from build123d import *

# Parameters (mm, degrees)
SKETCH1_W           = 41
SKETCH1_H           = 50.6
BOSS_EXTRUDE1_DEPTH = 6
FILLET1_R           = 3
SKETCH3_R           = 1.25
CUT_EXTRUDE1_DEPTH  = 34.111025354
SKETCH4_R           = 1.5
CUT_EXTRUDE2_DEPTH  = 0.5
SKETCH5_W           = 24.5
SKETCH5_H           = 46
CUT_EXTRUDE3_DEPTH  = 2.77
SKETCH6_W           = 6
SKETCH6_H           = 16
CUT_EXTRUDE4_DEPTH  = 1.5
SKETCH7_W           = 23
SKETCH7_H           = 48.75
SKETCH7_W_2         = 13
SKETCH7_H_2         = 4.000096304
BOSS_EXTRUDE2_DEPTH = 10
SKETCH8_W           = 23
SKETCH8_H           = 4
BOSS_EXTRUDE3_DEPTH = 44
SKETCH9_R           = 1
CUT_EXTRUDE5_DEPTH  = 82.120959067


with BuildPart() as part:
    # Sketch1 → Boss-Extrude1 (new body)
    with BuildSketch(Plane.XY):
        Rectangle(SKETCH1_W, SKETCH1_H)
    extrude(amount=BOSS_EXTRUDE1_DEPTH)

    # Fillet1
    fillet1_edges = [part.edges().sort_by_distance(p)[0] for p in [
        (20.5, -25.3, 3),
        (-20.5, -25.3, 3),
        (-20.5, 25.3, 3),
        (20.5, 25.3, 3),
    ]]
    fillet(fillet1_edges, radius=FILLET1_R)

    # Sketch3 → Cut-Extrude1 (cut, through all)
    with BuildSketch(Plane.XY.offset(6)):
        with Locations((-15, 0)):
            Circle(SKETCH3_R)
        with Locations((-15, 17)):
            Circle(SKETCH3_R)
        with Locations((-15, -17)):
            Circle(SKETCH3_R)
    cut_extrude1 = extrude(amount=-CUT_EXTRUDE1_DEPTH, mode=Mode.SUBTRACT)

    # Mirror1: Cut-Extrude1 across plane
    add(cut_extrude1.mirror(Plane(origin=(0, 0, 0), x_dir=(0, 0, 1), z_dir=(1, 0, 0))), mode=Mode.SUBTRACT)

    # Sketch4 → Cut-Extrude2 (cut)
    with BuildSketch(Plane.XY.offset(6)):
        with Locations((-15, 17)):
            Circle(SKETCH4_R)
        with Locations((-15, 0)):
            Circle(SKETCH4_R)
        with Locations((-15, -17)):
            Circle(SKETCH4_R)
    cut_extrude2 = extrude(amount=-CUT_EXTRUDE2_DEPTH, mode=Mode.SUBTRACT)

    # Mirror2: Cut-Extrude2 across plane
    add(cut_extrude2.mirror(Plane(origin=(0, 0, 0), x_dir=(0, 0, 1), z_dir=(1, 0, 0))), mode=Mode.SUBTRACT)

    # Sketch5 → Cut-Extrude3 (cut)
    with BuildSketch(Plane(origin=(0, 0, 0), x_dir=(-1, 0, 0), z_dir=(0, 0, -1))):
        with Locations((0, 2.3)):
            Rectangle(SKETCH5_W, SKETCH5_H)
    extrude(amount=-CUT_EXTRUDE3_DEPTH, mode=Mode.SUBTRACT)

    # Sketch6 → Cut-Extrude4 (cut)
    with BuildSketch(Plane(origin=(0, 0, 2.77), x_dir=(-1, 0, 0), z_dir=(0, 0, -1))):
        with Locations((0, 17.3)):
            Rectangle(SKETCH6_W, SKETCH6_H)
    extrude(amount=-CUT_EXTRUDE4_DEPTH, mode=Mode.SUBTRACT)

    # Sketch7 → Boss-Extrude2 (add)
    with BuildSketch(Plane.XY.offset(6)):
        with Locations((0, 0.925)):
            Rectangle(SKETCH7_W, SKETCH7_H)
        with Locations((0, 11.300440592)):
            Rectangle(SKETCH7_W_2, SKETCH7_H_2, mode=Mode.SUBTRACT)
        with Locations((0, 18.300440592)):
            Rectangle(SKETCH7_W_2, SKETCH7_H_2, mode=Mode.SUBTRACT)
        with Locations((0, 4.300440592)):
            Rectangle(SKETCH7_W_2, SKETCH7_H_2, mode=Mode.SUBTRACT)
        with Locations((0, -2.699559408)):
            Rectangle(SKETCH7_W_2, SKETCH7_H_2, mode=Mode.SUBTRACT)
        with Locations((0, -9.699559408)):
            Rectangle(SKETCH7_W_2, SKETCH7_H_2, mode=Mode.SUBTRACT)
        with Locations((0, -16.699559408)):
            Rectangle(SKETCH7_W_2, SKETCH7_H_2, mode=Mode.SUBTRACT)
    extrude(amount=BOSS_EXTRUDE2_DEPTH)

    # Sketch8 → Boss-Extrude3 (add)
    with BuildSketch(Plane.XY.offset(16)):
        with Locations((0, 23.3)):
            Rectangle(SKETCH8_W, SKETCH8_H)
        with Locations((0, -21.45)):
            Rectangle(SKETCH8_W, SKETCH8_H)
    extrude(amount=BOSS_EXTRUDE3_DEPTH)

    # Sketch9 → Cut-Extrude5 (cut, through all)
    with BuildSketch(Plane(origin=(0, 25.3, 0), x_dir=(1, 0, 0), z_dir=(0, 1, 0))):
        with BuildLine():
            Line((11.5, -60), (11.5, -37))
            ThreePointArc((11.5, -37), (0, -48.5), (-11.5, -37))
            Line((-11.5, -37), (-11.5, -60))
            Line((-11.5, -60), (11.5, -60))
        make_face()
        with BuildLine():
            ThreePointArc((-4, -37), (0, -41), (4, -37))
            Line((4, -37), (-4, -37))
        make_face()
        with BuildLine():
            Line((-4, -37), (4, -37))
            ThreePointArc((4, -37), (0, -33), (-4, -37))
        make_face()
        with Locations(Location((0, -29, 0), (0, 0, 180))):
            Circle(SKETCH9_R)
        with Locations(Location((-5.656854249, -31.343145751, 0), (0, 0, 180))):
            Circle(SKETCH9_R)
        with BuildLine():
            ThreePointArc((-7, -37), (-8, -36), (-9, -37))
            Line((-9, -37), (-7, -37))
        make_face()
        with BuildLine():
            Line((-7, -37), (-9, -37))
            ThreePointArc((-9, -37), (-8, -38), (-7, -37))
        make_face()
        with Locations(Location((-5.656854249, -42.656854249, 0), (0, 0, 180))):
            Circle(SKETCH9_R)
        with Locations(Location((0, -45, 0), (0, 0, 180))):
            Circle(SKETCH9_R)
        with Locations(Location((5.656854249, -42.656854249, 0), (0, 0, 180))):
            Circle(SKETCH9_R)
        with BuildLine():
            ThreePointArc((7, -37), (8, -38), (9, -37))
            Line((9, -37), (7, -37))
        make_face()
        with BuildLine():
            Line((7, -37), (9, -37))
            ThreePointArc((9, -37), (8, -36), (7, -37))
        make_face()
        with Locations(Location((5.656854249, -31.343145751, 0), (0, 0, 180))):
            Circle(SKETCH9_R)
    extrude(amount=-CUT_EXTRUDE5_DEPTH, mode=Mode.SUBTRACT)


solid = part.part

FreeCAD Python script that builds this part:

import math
import FreeCAD as App
import Part
import Sketcher
from FreeCAD import Vector


def edges_at(feature, points):
    """Names of the edges that pass closest to the given points."""
    edges = feature.Shape.Edges
    near = lambda p: min(range(len(edges)), key=lambda i: edges[i].distToShape(Part.Vertex(*p))[0])
    return sorted({f"Edge{near(p) + 1}" for p in points})

doc = App.newDocument("Part")
body = doc.addObject("PartDesign::Body", "Body")

# Sketch on XY plane
sketch1 = doc.addObject("Sketcher::SketchObject", "Sketch")
body.addObject(sketch1)
sketch1.AttachmentSupport = (doc.XY_Plane, [""])
sketch1.MapMode = "FlatFace"
sketch1.addGeometry([
    Part.LineSegment(Vector(-20.5, 25.3, 0), Vector(-20.5, -25.3, 0)),
    Part.LineSegment(Vector(-20.5, -25.3, 0), Vector(20.5, -25.3, 0)),
    Part.LineSegment(Vector(20.5, -25.3, 0), Vector(20.5, 25.3, 0)),
    Part.LineSegment(Vector(20.5, 25.3, 0), Vector(-20.5, 25.3, 0)),
], False)
sketch1.addConstraint([
    Sketcher.Constraint("Coincident", 0, 2, 1, 1),
    Sketcher.Constraint("Coincident", 1, 2, 2, 1),
    Sketcher.Constraint("Coincident", 2, 2, 3, 1),
    Sketcher.Constraint("Coincident", 3, 2, 0, 1),
    Sketcher.Constraint("Vertical", 0),
    Sketcher.Constraint("Horizontal", 1),
    Sketcher.Constraint("Vertical", 2),
    Sketcher.Constraint("Horizontal", 3),
    Sketcher.Constraint("Symmetric", 0, 2, 2, 2, -1, 1),
    Sketcher.Constraint("DistanceX", 1, 1, 1, 2, 41.0),
    Sketcher.Constraint("DistanceY", 0, 2, 0, 1, 50.6),
])
pad1 = doc.addObject("PartDesign::Pad", "Pad")
body.addObject(pad1)
pad1.Profile = sketch1
pad1.Length = 6
doc.recompute()

fillet = doc.addObject("PartDesign::Fillet", "Fillet")
body.addObject(fillet)
fillet.Base = (pad1, edges_at(pad1, [
    (20.5, -25.3, 3),
    (-20.5, -25.3, 3),
    (-20.5, 25.3, 3),
    (20.5, 25.3, 3),
]))
fillet.Radius = 3

# Sketch on XY plane
sketch2 = doc.addObject("Sketcher::SketchObject", "Sketch001")
body.addObject(sketch2)
sketch2.AttachmentSupport = (doc.XY_Plane, [""])
sketch2.MapMode = "FlatFace"
sketch2.AttachmentOffset = App.Placement(Vector(0, 0, 6), App.Rotation())
sketch2.addGeometry([
    Part.Circle(Vector(-15, 0, 0), Vector(0, 0, 1), 1.25),
    Part.Circle(Vector(-15, 17, 0), Vector(0, 0, 1), 1.25),
    Part.Circle(Vector(-15, -17, 0), Vector(0, 0, 1), 1.25),
], False)
sketch2.addConstraint([
    Sketcher.Constraint("Equal", 0, 1),
    Sketcher.Constraint("Equal", 1, 2),
    Sketcher.Constraint("Symmetric", 1, 3, 2, 3, -1),
    Sketcher.Constraint("PointOnObject", 0, 3, -1),
    Sketcher.Constraint("Vertical", 0, 3, 1, 3),
    Sketcher.Constraint("Diameter", 0, 2.5),
    Sketcher.Constraint("DistanceX", 0, 3, -1, 1, 15.0),
    Sketcher.Constraint("DistanceY", -1, 1, 1, 3, 17.0),
])
pocket1 = doc.addObject("PartDesign::Pocket", "Pocket")
body.addObject(pocket1)
pocket1.Profile = sketch2
pocket1.Type = "ThroughAll"
doc.recompute()

mirrored = doc.addObject("PartDesign::Mirrored", "Mirrored")
body.addObject(mirrored)
mirrored.Originals = [pocket1]
mirrored.MirrorPlane = (doc.YZ_Plane, [""])
body.Tip = mirrored

# Sketch on XY plane
sketch3 = doc.addObject("Sketcher::SketchObject", "Sketch002")
body.addObject(sketch3)
sketch3.AttachmentSupport = (doc.XY_Plane, [""])
sketch3.MapMode = "FlatFace"
sketch3.AttachmentOffset = App.Placement(Vector(0, 0, 6), App.Rotation())
sketch3.addGeometry([
    Part.Circle(Vector(-15, 17, 0), Vector(0, 0, 1), 1.5),
    Part.Circle(Vector(-15, 0, 0), Vector(0, 0, 1), 1.5),
    Part.Circle(Vector(-15, -17, 0), Vector(0, 0, 1), 1.5),
], False)
sketch3.addConstraint([
    Sketcher.Constraint("Equal", 0, 1),
    Sketcher.Constraint("Equal", 1, 2),
    Sketcher.Constraint("Symmetric", 0, 3, 2, 3, -1),
    Sketcher.Constraint("PointOnObject", 1, 3, -1),
    Sketcher.Constraint("Vertical", 0, 3, 1, 3),
    Sketcher.Constraint("Diameter", 0, 3.0),
    Sketcher.Constraint("DistanceX", 0, 3, -1, 1, 15.0),
    Sketcher.Constraint("DistanceY", -1, 1, 0, 3, 17.0),
])
pocket2 = doc.addObject("PartDesign::Pocket", "Pocket001")
body.addObject(pocket2)
pocket2.Profile = sketch3
pocket2.Length = 0.5
doc.recompute()

mirrored2 = doc.addObject("PartDesign::Mirrored", "Mirrored001")
body.addObject(mirrored2)
mirrored2.Originals = [pocket2]
mirrored2.MirrorPlane = (doc.YZ_Plane, [""])
body.Tip = mirrored2

# Sketch on XY plane
sketch4 = doc.addObject("Sketcher::SketchObject", "Sketch003")
body.addObject(sketch4)
sketch4.AttachmentSupport = (doc.XY_Plane, [""])
sketch4.MapMode = "FlatFace"
sketch4.addGeometry([
    Part.LineSegment(Vector(12.25, 25.3, 0), Vector(12.25, -20.7, 0)),
    Part.LineSegment(Vector(12.25, -20.7, 0), Vector(-12.25, -20.7, 0)),
    Part.LineSegment(Vector(-12.25, -20.7, 0), Vector(-12.25, 25.3, 0)),
    Part.LineSegment(Vector(-12.25, 25.3, 0), Vector(12.25, 25.3, 0)),
], False)
sketch4.addConstraint([
    Sketcher.Constraint("Coincident", 0, 2, 1, 1),
    Sketcher.Constraint("Coincident", 1, 2, 2, 1),
    Sketcher.Constraint("Coincident", 2, 2, 3, 1),
    Sketcher.Constraint("Coincident", 3, 2, 0, 1),
    Sketcher.Constraint("Vertical", 0),
    Sketcher.Constraint("Horizontal", 1),
    Sketcher.Constraint("Vertical", 2),
    Sketcher.Constraint("Horizontal", 3),
    Sketcher.Constraint("DistanceY", 0, 2, 0, 1, 46.0),
    Sketcher.Constraint("DistanceX", 1, 2, 1, 1, 24.5),
    Sketcher.Constraint("DistanceY", 0, 2, -1, 1, 20.7),
    Sketcher.Constraint("DistanceX", -1, 1, 0, 2, 12.25),
])
pocket3 = doc.addObject("PartDesign::Pocket", "Pocket002")
body.addObject(pocket3)
pocket3.Profile = sketch4
pocket3.Length = 2.77
pocket3.Reversed = True

# Sketch on XY plane
sketch5 = doc.addObject("Sketcher::SketchObject", "Sketch004")
body.addObject(sketch5)
sketch5.AttachmentSupport = (doc.XY_Plane, [""])
sketch5.MapMode = "FlatFace"
sketch5.AttachmentOffset = App.Placement(Vector(0, 0, 2.77), App.Rotation())
sketch5.addGeometry([
    Part.LineSegment(Vector(3, 25.3, 0), Vector(3, 9.3, 0)),
    Part.LineSegment(Vector(3, 9.3, 0), Vector(-3, 9.3, 0)),
    Part.LineSegment(Vector(-3, 9.3, 0), Vector(-3, 25.3, 0)),
    Part.LineSegment(Vector(-3, 25.3, 0), Vector(3, 25.3, 0)),
], False)
sketch5.addConstraint([
    Sketcher.Constraint("Coincident", 0, 2, 1, 1),
    Sketcher.Constraint("Coincident", 1, 2, 2, 1),
    Sketcher.Constraint("Coincident", 2, 2, 3, 1),
    Sketcher.Constraint("Coincident", 3, 2, 0, 1),
    Sketcher.Constraint("Vertical", 0),
    Sketcher.Constraint("Horizontal", 1),
    Sketcher.Constraint("Vertical", 2),
    Sketcher.Constraint("Horizontal", 3),
    Sketcher.Constraint("DistanceX", 1, 2, 1, 1, 6.0),
    Sketcher.Constraint("DistanceY", 0, 2, 0, 1, 16.0),
    Sketcher.Constraint("DistanceX", -1, 1, 0, 2, 3.0),
    Sketcher.Constraint("DistanceY", -1, 1, 0, 2, 9.3),
])
pocket4 = doc.addObject("PartDesign::Pocket", "Pocket003")
body.addObject(pocket4)
pocket4.Profile = sketch5
pocket4.Length = 1.5
pocket4.Reversed = True

# Sketch on XY plane
sketch6 = doc.addObject("Sketcher::SketchObject", "Sketch005")
body.addObject(sketch6)
sketch6.AttachmentSupport = (doc.XY_Plane, [""])
sketch6.MapMode = "FlatFace"
sketch6.AttachmentOffset = App.Placement(Vector(0, 0, 6), App.Rotation())
sketch6.addGeometry([
    Part.LineSegment(Vector(-11.5, 25.3, 0), Vector(-11.5, -23.45, 0)),  # 0
    Part.LineSegment(Vector(-11.5, -23.45, 0), Vector(11.5, -23.45, 0)),  # 1
    Part.LineSegment(Vector(11.5, -23.45, 0), Vector(11.5, 25.3, 0)),  # 2
    Part.LineSegment(Vector(11.5, 25.3, 0), Vector(-11.5, 25.3, 0)),  # 3
    Part.LineSegment(Vector(6.5, -18.699608, 0), Vector(-6.5, -18.699608, 0)),  # 4
    Part.LineSegment(Vector(-6.5, -18.699608, 0), Vector(-6.5, -14.699511, 0)),  # 5
    Part.LineSegment(Vector(-6.5, -14.699511, 0), Vector(6.5, -14.699511, 0)),  # 6
    Part.LineSegment(Vector(6.5, -14.699511, 0), Vector(6.5, -18.699608, 0)),  # 7
    Part.LineSegment(Vector(6.5, -11.699608, 0), Vector(-6.5, -11.699608, 0)),  # 8
    Part.LineSegment(Vector(-6.5, -11.699608, 0), Vector(-6.5, -7.699511, 0)),  # 9
    Part.LineSegment(Vector(-6.5, -7.699511, 0), Vector(6.5, -7.699511, 0)),  # 10
    Part.LineSegment(Vector(6.5, -7.699511, 0), Vector(6.5, -11.699608, 0)),  # 11
    Part.LineSegment(Vector(6.5, -4.699608, 0), Vector(-6.5, -4.699608, 0)),  # 12
    Part.LineSegment(Vector(-6.5, -4.699608, 0), Vector(-6.5, -0.699511, 0)),  # 13
    Part.LineSegment(Vector(-6.5, -0.699511, 0), Vector(6.5, -0.699511, 0)),  # 14
    Part.LineSegment(Vector(6.5, -0.699511, 0), Vector(6.5, -4.699608, 0)),  # 15
    Part.LineSegment(Vector(6.5, 2.300392, 0), Vector(-6.5, 2.300392, 0)),  # 16
    Part.LineSegment(Vector(-6.5, 2.300392, 0), Vector(-6.5, 6.300489, 0)),  # 17
    Part.LineSegment(Vector(-6.5, 6.300489, 0), Vector(6.5, 6.300489, 0)),  # 18
    Part.LineSegment(Vector(6.5, 6.300489, 0), Vector(6.5, 2.300392, 0)),  # 19
    Part.LineSegment(Vector(6.5, 9.300392, 0), Vector(-6.5, 9.300392, 0)),  # 20
    Part.LineSegment(Vector(-6.5, 9.300392, 0), Vector(-6.5, 13.300489, 0)),  # 21
    Part.LineSegment(Vector(-6.5, 13.300489, 0), Vector(6.5, 13.300489, 0)),  # 22
    Part.LineSegment(Vector(6.5, 13.300489, 0), Vector(6.5, 9.300392, 0)),  # 23
    Part.LineSegment(Vector(6.5, 16.300392, 0), Vector(-6.5, 16.300392, 0)),  # 24
    Part.LineSegment(Vector(-6.5, 16.300392, 0), Vector(-6.5, 20.300489, 0)),  # 25
    Part.LineSegment(Vector(-6.5, 20.300489, 0), Vector(6.5, 20.300489, 0)),  # 26
    Part.LineSegment(Vector(6.5, 20.300489, 0), Vector(6.5, 16.300392, 0)),  # 27
], False)
sketch6.addConstraint([
    Sketcher.Constraint("Coincident", 0, 2, 1, 1),
    Sketcher.Constraint("Coincident", 1, 2, 2, 1),
    Sketcher.Constraint("Coincident", 2, 2, 3, 1),
    Sketcher.Constraint("Coincident", 3, 2, 0, 1),
    Sketcher.Constraint("Coincident", 4, 2, 5, 1),
    Sketcher.Constraint("Coincident", 5, 2, 6, 1),
    Sketcher.Constraint("Coincident", 6, 2, 7, 1),
    Sketcher.Constraint("Coincident", 7, 2, 4, 1),
    Sketcher.Constraint("Coincident", 8, 2, 9, 1),
    Sketcher.Constraint("Coincident", 9, 2, 10, 1),
    Sketcher.Constraint("Coincident", 10, 2, 11, 1),
    Sketcher.Constraint("Coincident", 11, 2, 8, 1),
    Sketcher.Constraint("Coincident", 12, 2, 13, 1),
    Sketcher.Constraint("Coincident", 13, 2, 14, 1),
    Sketcher.Constraint("Coincident", 14, 2, 15, 1),
    Sketcher.Constraint("Coincident", 15, 2, 12, 1),
    Sketcher.Constraint("Coincident", 16, 2, 17, 1),
    Sketcher.Constraint("Coincident", 17, 2, 18, 1),
    Sketcher.Constraint("Coincident", 18, 2, 19, 1),
    Sketcher.Constraint("Coincident", 19, 2, 16, 1),
    Sketcher.Constraint("Coincident", 20, 2, 21, 1),
    Sketcher.Constraint("Coincident", 21, 2, 22, 1),
    Sketcher.Constraint("Coincident", 22, 2, 23, 1),
    Sketcher.Constraint("Coincident", 23, 2, 20, 1),
    Sketcher.Constraint("Coincident", 24, 2, 25, 1),
    Sketcher.Constraint("Coincident", 25, 2, 26, 1),
    Sketcher.Constraint("Coincident", 26, 2, 27, 1),
    Sketcher.Constraint("Coincident", 27, 2, 24, 1),
    Sketcher.Constraint("Vertical", 0),
    Sketcher.Constraint("Horizontal", 1),
    Sketcher.Constraint("Vertical", 2),
    Sketcher.Constraint("Horizontal", 3),
    Sketcher.Constraint("Horizontal", 4),
    Sketcher.Constraint("Vertical", 5),
    Sketcher.Constraint("Horizontal", 6),
    Sketcher.Constraint("Vertical", 7),
    Sketcher.Constraint("Horizontal", 8),
    Sketcher.Constraint("Vertical", 9),
    Sketcher.Constraint("Horizontal", 10),
    Sketcher.Constraint("Vertical", 11),
    Sketcher.Constraint("Horizontal", 12),
    Sketcher.Constraint("Vertical", 13),
    Sketcher.Constraint("Horizontal", 14),
    Sketcher.Constraint("Vertical", 15),
    Sketcher.Constraint("Horizontal", 16),
    Sketcher.Constraint("Vertical", 17),
    Sketcher.Constraint("Horizontal", 18),
    Sketcher.Constraint("Vertical", 19),
    Sketcher.Constraint("Horizontal", 20),
    Sketcher.Constraint("Vertical", 21),
    Sketcher.Constraint("Horizontal", 22),
    Sketcher.Constraint("Vertical", 23),
    Sketcher.Constraint("Horizontal", 24),
    Sketcher.Constraint("Vertical", 25),
    Sketcher.Constraint("Horizontal", 26),
    Sketcher.Constraint("Vertical", 27),
    Sketcher.Constraint("Vertical", 5, 2, 8, 2),
    Sketcher.Constraint("Vertical", 7, 2, 10, 2),
    Sketcher.Constraint("Vertical", 9, 2, 12, 2),
    Sketcher.Constraint("Vertical", 11, 2, 14, 2),
    Sketcher.Constraint("Vertical", 13, 2, 16, 2),
    Sketcher.Constraint("Vertical", 15, 2, 18, 2),
    Sketcher.Constraint("Vertical", 17, 2, 20, 2),
    Sketcher.Constraint("Vertical", 19, 2, 22, 2),
    Sketcher.Constraint("Vertical", 21, 2, 24, 2),
    Sketcher.Constraint("Vertical", 23, 2, 26, 2),
    Sketcher.Constraint("Equal", 7, 9),
    Sketcher.Constraint("Equal", 11, 13),
    Sketcher.Constraint("Equal", 15, 17),
    Sketcher.Constraint("Equal", 19, 21),
    Sketcher.Constraint("Equal", 23, 25),
    Sketcher.Constraint("DistanceX", 1, 1, 1, 2, 23.0),
    Sketcher.Constraint("DistanceX", 4, 2, 4, 1, 13.0),
    Sketcher.Constraint("DistanceX", 0, 2, 4, 2, 5.0),
    Sketcher.Constraint("DistanceY", 4, 2, 8, 2, 7.0),
    Sketcher.Constraint("DistanceY", 8, 2, 12, 2, 7.0),
    Sketcher.Constraint("DistanceY", 12, 2, 16, 2, 7.0),
    Sketcher.Constraint("DistanceY", 16, 2, 20, 2, 7.0),
    Sketcher.Constraint("DistanceY", 20, 2, 24, 2, 7.0),
    Sketcher.Constraint("DistanceY", 0, 2, 0, 1, 48.75),
    Sketcher.Constraint("DistanceX", 0, 2, -1, 1, 11.5),
    Sketcher.Constraint("DistanceY", -1, 1, 2, 2, 25.3),
    Sketcher.Constraint("DistanceY", 5, 1, 5, 2, 4.000096),
    Sketcher.Constraint("DistanceY", 5, 2, -1, 1, 14.699511),
])
pad2 = doc.addObject("PartDesign::Pad", "Pad001")
body.addObject(pad2)
pad2.Profile = sketch6
pad2.Length = 10

# Sketch on XY plane
sketch7 = doc.addObject("Sketcher::SketchObject", "Sketch006")
body.addObject(sketch7)
sketch7.AttachmentSupport = (doc.XY_Plane, [""])
sketch7.MapMode = "FlatFace"
sketch7.AttachmentOffset = App.Placement(Vector(0, 0, 16), App.Rotation())
sketch7.addGeometry([
    Part.LineSegment(Vector(-11.5, 25.3, 0), Vector(-11.5, 21.3, 0)),  # 0
    Part.LineSegment(Vector(-11.5, 21.3, 0), Vector(11.5, 21.3, 0)),  # 1
    Part.LineSegment(Vector(11.5, 21.3, 0), Vector(11.5, 25.3, 0)),  # 2
    Part.LineSegment(Vector(11.5, 25.3, 0), Vector(-11.5, 25.3, 0)),  # 3
    Part.LineSegment(Vector(-11.5, -19.45, 0), Vector(-11.5, -23.45, 0)),  # 4
    Part.LineSegment(Vector(-11.5, -23.45, 0), Vector(11.5, -23.45, 0)),  # 5
    Part.LineSegment(Vector(11.5, -23.45, 0), Vector(11.5, -19.45, 0)),  # 6
    Part.LineSegment(Vector(11.5, -19.45, 0), Vector(-11.5, -19.45, 0)),  # 7
], False)
sketch7.addConstraint([
    Sketcher.Constraint("Coincident", 0, 2, 1, 1),
    Sketcher.Constraint("Coincident", 1, 2, 2, 1),
    Sketcher.Constraint("Coincident", 2, 2, 3, 1),
    Sketcher.Constraint("Coincident", 3, 2, 0, 1),
    Sketcher.Constraint("Coincident", 4, 2, 5, 1),
    Sketcher.Constraint("Coincident", 5, 2, 6, 1),
    Sketcher.Constraint("Coincident", 6, 2, 7, 1),
    Sketcher.Constraint("Coincident", 7, 2, 4, 1),
    Sketcher.Constraint("Vertical", 0),
    Sketcher.Constraint("Horizontal", 1),
    Sketcher.Constraint("Vertical", 2),
    Sketcher.Constraint("Horizontal", 3),
    Sketcher.Constraint("Vertical", 4),
    Sketcher.Constraint("Horizontal", 5),
    Sketcher.Constraint("Vertical", 6),
    Sketcher.Constraint("Horizontal", 7),
    Sketcher.Constraint("Vertical", 3, 2, 4, 2),
    Sketcher.Constraint("Vertical", 2, 2, 5, 2),
    Sketcher.Constraint("Equal", 2, 4),
    Sketcher.Constraint("DistanceX", 1, 1, 1, 2, 23.0),
    Sketcher.Constraint("DistanceY", 0, 2, 0, 1, 4.0),
    Sketcher.Constraint("DistanceX", 0, 2, -1, 1, 11.5),
    Sketcher.Constraint("DistanceY", -1, 1, 0, 2, 21.3),
    Sketcher.Constraint("DistanceY", 4, 2, -1, 1, 23.45),
])
pad3 = doc.addObject("PartDesign::Pad", "Pad002")
body.addObject(pad3)
pad3.Profile = sketch7
pad3.Length = 44

# Sketch on XZ plane
sketch8 = doc.addObject("Sketcher::SketchObject", "Sketch007")
body.addObject(sketch8)
sketch8.AttachmentSupport = (doc.XZ_Plane, [""])
sketch8.MapMode = "FlatFace"
sketch8.AttachmentOffset = App.Placement(Vector(0, 0, -25.3), App.Rotation())
sketch8.addGeometry([
    Part.LineSegment(Vector(11.5, 60, 0), Vector(11.5, 37, 0)),  # 0
    Part.ArcOfCircle(Part.Circle(Vector(0, 37, 0), Vector(0, 0, 1), 11.5), math.radians(0), math.radians(180)),  # 1
    Part.LineSegment(Vector(-11.5, 37, 0), Vector(-11.5, 60, 0)),  # 2
    Part.LineSegment(Vector(-11.5, 60, 0), Vector(11.5, 60, 0)),  # 3
    Part.Circle(Vector(0, 37, 0), Vector(0, 0, 1), 4),  # 4
    Part.Circle(Vector(0, 29, 0), Vector(0, 0, 1), 1),  # 5
    Part.Circle(Vector(-5.656854, 31.343146, 0), Vector(0, 0, 1), 1),  # 6
    Part.Circle(Vector(-8, 37, 0), Vector(0, 0, 1), 1),  # 7
    Part.Circle(Vector(-5.656854, 42.656854, 0), Vector(0, 0, 1), 1),  # 8
    Part.Circle(Vector(0, 45, 0), Vector(0, 0, 1), 1),  # 9
    Part.Circle(Vector(5.656854, 42.656854, 0), Vector(0, 0, 1), 1),  # 10
    Part.Circle(Vector(8, 37, 0), Vector(0, 0, 1), 1),  # 11
    Part.Circle(Vector(5.656854, 31.343146, 0), Vector(0, 0, 1), 1),  # 12
], False)
sketch8.addConstraint([
    Sketcher.Constraint("Tangent", 0, 2, 1, 1),
    Sketcher.Constraint("Tangent", 1, 2, 2, 1),
    Sketcher.Constraint("Coincident", 2, 2, 3, 1),
    Sketcher.Constraint("Coincident", 3, 2, 0, 1),
    Sketcher.Constraint("Vertical", 0),
    Sketcher.Constraint("Vertical", 2),
    Sketcher.Constraint("Horizontal", 3),
    Sketcher.Constraint("Coincident", 4, 3, 1, 3),
    Sketcher.Constraint("Equal", 5, 6),
    Sketcher.Constraint("Equal", 6, 7),
    Sketcher.Constraint("Equal", 7, 8),
    Sketcher.Constraint("Equal", 8, 9),
    Sketcher.Constraint("Equal", 9, 10),
    Sketcher.Constraint("Equal", 10, 11),
    Sketcher.Constraint("Equal", 11, 12),
    Sketcher.Constraint("Symmetric", 8, 3, 10, 3, -2),
    Sketcher.Constraint("Symmetric", 7, 3, 11, 3, -2),
    Sketcher.Constraint("Symmetric", 6, 3, 12, 3, -2),
    Sketcher.Constraint("PointOnObject", 1, 3, -2),
    Sketcher.Constraint("PointOnObject", 5, 3, -2),
    Sketcher.Constraint("PointOnObject", 9, 3, -2),
    Sketcher.Constraint("Horizontal", 4, 3, 7, 3),
    Sketcher.Constraint("Vertical", 6, 3, 8, 3),
    Sketcher.Constraint("Equal", 3, 0),
    Sketcher.Constraint("Diameter", 4, 8.0),
    Sketcher.Constraint("Diameter", 5, 2.0),
    Sketcher.Constraint("Radius", 1, 11.5),
    Sketcher.Constraint("DistanceY", -1, 1, 1, 3, 37.0),
    Sketcher.Constraint("DistanceY", -1, 1, 5, 3, 29.0),
    Sketcher.Constraint("DistanceX", 7, 3, -1, 1, 8.0),
    Sketcher.Constraint("DistanceY", -1, 1, 9, 3, 45.0),
    Sketcher.Constraint("DistanceY", 6, 3, 8, 3, 11.313708),
    Sketcher.Constraint("DistanceX", 8, 3, 10, 3, 11.313708),
    Sketcher.Constraint("DistanceY", -1, 1, 6, 3, 31.343146),
])
pocket5 = doc.addObject("PartDesign::Pocket", "Pocket004")
body.addObject(pocket5)
pocket5.Profile = sketch8
pocket5.Type = "ThroughAll"
pocket5.Reversed = True

doc.recompute()
